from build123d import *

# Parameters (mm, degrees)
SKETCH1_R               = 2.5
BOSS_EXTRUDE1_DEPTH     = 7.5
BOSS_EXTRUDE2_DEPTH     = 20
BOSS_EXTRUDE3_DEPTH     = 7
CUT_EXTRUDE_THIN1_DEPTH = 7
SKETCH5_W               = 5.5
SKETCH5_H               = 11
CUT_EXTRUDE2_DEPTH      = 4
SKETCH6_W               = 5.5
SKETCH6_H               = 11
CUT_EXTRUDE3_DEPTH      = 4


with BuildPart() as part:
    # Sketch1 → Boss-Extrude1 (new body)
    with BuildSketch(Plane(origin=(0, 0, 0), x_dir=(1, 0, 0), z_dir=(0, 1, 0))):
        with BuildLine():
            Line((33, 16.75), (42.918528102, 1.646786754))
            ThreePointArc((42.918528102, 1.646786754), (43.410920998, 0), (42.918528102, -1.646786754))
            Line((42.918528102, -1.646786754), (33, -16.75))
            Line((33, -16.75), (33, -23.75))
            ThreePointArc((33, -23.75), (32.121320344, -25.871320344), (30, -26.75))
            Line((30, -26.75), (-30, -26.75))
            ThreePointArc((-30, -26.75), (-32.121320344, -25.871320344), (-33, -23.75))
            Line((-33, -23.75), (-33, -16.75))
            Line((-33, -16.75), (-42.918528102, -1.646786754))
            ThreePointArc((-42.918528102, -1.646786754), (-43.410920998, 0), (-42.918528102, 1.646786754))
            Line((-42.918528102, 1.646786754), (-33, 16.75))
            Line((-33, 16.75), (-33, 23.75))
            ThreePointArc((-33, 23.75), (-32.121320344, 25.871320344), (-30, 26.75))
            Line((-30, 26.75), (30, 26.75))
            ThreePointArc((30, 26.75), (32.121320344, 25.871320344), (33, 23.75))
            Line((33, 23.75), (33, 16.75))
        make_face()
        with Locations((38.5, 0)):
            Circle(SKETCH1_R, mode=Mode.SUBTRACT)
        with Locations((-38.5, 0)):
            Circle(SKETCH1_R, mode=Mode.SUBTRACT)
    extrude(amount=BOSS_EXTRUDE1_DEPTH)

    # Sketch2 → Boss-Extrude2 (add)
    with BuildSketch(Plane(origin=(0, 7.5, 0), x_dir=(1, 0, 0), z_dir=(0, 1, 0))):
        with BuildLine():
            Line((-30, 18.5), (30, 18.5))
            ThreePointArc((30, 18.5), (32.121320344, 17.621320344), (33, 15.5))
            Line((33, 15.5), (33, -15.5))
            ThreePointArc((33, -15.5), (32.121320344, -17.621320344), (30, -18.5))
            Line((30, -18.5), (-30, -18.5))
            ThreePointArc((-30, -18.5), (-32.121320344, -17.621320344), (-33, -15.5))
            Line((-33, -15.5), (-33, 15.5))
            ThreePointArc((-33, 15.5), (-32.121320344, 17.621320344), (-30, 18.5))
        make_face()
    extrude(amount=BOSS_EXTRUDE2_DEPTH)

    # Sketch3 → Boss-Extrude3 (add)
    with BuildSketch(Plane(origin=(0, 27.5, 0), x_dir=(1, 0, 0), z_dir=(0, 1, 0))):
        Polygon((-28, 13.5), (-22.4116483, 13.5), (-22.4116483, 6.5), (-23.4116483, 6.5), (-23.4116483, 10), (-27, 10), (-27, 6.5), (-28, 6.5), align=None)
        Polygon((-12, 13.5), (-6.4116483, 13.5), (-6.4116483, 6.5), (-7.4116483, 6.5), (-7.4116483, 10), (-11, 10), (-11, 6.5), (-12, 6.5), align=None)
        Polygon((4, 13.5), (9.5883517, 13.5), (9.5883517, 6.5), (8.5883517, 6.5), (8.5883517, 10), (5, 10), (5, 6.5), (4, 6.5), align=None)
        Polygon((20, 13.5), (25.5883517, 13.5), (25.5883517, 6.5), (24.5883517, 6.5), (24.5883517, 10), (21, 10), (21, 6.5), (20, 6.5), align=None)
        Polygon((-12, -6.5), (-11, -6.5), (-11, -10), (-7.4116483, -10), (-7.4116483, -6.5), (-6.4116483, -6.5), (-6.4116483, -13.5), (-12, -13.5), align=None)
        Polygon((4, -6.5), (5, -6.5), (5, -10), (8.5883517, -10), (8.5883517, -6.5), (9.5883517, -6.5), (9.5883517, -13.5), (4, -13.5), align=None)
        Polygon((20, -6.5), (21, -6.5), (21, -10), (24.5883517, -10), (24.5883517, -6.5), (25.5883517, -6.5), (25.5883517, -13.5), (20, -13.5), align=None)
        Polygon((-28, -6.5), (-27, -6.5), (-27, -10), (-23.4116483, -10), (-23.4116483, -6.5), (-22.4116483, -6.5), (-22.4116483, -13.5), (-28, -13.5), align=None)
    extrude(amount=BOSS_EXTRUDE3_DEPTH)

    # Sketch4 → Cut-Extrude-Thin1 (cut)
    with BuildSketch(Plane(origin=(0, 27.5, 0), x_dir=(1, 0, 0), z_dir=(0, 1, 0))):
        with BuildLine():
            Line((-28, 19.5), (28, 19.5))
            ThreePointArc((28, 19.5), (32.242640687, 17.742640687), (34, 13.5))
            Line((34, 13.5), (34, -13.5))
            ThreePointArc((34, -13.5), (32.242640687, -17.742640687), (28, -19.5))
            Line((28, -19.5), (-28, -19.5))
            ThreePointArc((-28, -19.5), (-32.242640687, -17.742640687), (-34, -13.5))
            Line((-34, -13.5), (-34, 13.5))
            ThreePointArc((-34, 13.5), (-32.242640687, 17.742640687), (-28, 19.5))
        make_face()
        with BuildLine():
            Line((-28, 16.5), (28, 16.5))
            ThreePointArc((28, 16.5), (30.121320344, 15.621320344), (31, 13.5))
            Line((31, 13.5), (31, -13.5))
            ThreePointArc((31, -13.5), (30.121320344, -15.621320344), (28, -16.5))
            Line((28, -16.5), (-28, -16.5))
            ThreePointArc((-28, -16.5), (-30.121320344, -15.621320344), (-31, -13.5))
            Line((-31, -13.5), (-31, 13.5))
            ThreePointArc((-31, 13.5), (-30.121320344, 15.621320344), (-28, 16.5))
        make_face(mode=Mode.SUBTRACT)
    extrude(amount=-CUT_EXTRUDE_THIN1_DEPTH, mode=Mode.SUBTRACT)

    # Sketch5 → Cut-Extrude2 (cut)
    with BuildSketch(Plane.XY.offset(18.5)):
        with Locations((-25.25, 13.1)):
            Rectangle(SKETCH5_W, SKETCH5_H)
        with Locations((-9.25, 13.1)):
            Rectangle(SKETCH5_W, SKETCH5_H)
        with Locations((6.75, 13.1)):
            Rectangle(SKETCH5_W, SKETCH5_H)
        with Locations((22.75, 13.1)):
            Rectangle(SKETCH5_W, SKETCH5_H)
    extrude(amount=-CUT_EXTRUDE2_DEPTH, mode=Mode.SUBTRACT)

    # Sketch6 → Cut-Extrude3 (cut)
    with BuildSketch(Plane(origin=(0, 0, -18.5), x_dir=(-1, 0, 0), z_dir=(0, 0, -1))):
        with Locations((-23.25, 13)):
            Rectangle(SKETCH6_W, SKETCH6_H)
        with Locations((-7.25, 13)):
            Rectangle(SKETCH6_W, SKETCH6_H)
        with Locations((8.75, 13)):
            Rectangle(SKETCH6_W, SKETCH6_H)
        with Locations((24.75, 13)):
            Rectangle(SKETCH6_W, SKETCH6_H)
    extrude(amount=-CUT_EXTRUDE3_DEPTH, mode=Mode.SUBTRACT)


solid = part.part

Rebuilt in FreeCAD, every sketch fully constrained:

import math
import FreeCAD as App
import Part
import Sketcher
Q = App.Units.Quantity


def add_polygon(sketch, points):
    """Adds a closed chain of lines whose ends are joined by coincident constraints."""
    first, n = sketch.GeometryCount, len(points)
    for a, b in zip(points, points[1:] + points[:1]):
        sketch.addGeometry(Part.LineSegment(App.Vector(*a, 0), App.Vector(*b, 0)), False)
    for i in range(n):
        sketch.addConstraint(Sketcher.Constraint("Coincident", first + i, 2, first + (i + 1) % n, 1))

doc = App.newDocument("Part")
body = doc.addObject("PartDesign::Body", "Body")

sketch1 = body.newObject("Sketcher::SketchObject", "Sketch")
sketch1.AttachmentSupport = (doc.getObject("XZ_Plane"), [""])
sketch1.MapMode = "FlatFace"
sketch1.addGeometry([
    Part.LineSegment(App.Vector(42.9, -1.6, 0), App.Vector(33, -16.8, 0)),
    Part.LineSegment(App.Vector(33, -16.8, 0), App.Vector(33, -23.8, 0)),
    Part.ArcOfCircle(Part.Circle(App.Vector(30, -23.8, 0), App.Vector(0, 0, 1), 3), math.radians(-90), math.radians(0)),
    Part.LineSegment(App.Vector(30, -26.8, 0), App.Vector(-30, -26.8, 0)),
    Part.ArcOfCircle(Part.Circle(App.Vector(-30, -23.8, 0), App.Vector(0, 0, 1), 3), math.radians(180), math.radians(270)),
    Part.LineSegment(App.Vector(-33, -23.8, 0), App.Vector(-33, -16.8, 0)),
    Part.LineSegment(App.Vector(-33, -16.8, 0), App.Vector(-42.9, -1.6, 0)),
    Part.ArcOfCircle(Part.Circle(App.Vector(-40.4, 0, 0), App.Vector(0, 0, 1), 3), math.radians(147), math.radians(213)),
    Part.LineSegment(App.Vector(-42.9, 1.6, 0), App.Vector(-33, 16.8, 0)),
    Part.LineSegment(App.Vector(-33, 16.8, 0), App.Vector(-33, 23.8, 0)),
    Part.ArcOfCircle(Part.Circle(App.Vector(-30, 23.8, 0), App.Vector(0, 0, 1), 3), math.radians(90), math.radians(180)),
    Part.LineSegment(App.Vector(-30, 26.8, 0), App.Vector(30, 26.8, 0)),
    Part.ArcOfCircle(Part.Circle(App.Vector(30, 23.8, 0), App.Vector(0, 0, 1), 3), math.radians(0), math.radians(90)),
    Part.LineSegment(App.Vector(33, 23.8, 0), App.Vector(33, 16.8, 0)),
    Part.LineSegment(App.Vector(33, 16.8, 0), App.Vector(42.9, 1.6, 0)),
    Part.ArcOfCircle(Part.Circle(App.Vector(40.4, 0, 0), App.Vector(0, 0, 1), 3), math.radians(-33), math.radians(33)),
    Part.Circle(App.Vector(38.5, 0, 0), App.Vector(0, 0, 1), 2.5),
    Part.Circle(App.Vector(-38.5, 0, 0), App.Vector(0, 0, 1), 2.5),
], False)
sketch1.addConstraint([
    Sketcher.Constraint("Coincident", 0, 2, 1, 1),
    Sketcher.Constraint("Tangent", 1, 2, 2, 2),
    Sketcher.Constraint("Tangent", 2, 1, 3, 1),
    Sketcher.Constraint("Tangent", 3, 2, 4, 2),
    Sketcher.Constraint("Tangent", 4, 1, 5, 1),
    Sketcher.Constraint("Coincident", 5, 2, 6, 1),
    Sketcher.Constraint("Tangent", 6, 2, 7, 2),
    Sketcher.Constraint("Tangent", 7, 1, 8, 1),
    Sketcher.Constraint("Coincident", 8, 2, 9, 1),
    Sketcher.Constraint("Tangent", 9, 2, 10, 2),
    Sketcher.Constraint("Tangent", 10, 1, 11, 1),
    Sketcher.Constraint("Tangent", 11, 2, 12, 2),
    Sketcher.Constraint("Tangent", 12, 1, 13, 1),
    Sketcher.Constraint("Coincident", 13, 2, 14, 1),
    Sketcher.Constraint("Tangent", 14, 2, 15, 2),
    Sketcher.Constraint("Tangent", 15, 1, 0, 1),
    Sketcher.Constraint("Vertical", 1),
    Sketcher.Constraint("Horizontal", 3),
    Sketcher.Constraint("Vertical", 5),
    Sketcher.Constraint("Vertical", 9),
    Sketcher.Constraint("Horizontal", 11),
    Sketcher.Constraint("Vertical", 13),
    Sketcher.Constraint("Equal", 2, 4),
    Sketcher.Constraint("Equal", 4, 7),
    Sketcher.Constraint("Equal", 7, 10),
    Sketcher.Constraint("Equal", 10, 12),
    Sketcher.Constraint("Equal", 12, 15),
    Sketcher.Constraint("Equal", 16, 17),
    Sketcher.Constraint("Symmetric", 2, 3, 10, 3, -1, 1),
    Sketcher.Constraint("Symmetric", 7, 3, 15, 3, -1, 1),
    Sketcher.Constraint("Symmetric", 16, 3, 17, 3, -1, 1),
    Sketcher.Constraint("Symmetric", 5, 2, 13, 2, -1, 1),
    Sketcher.Constraint("Symmetric", 0, 2, 5, 2, -2),
    Sketcher.Constraint("Symmetric", 7, 1, 14, 2, -2),
    Sketcher.Constraint("PointOnObject", 16, 3, -1),
    Sketcher.Constraint("Diameter", 16, Q("5 mm")),
    Sketcher.Constraint("Radius", 2, Q("3 mm")),
    Sketcher.Constraint("DistanceX", 3, 2, 3, 1, Q("60 mm")),
    Sketcher.Constraint("DistanceY", 1, 2, 1, 1, Q("7 mm")),
    Sketcher.Constraint("DistanceX", -1, 1, 16, 3, Q("38.5 mm")),
    Sketcher.Constraint("DistanceY", 4, 3, 10, 3, Q("47.5 mm")),
    Sketcher.Constraint("DistanceX", 7, 3, -1, 1, Q("40.410921 mm")),
])
pad1 = body.newObject("PartDesign::Pad", "Pad")
pad1.Profile = sketch1
pad1.Length = 7.5
pad1.Reversed = True

sketch2 = body.newObject("Sketcher::SketchObject", "Sketch001")
sketch2.AttachmentSupport = (doc.getObject("XZ_Plane"), [""])
sketch2.MapMode = "FlatFace"
sketch2.AttachmentOffset = App.Placement(App.Vector(0, 0, -7.5), App.Rotation())
sketch2.addGeometry([
    Part.LineSegment(App.Vector(30, -18.5, 0), App.Vector(-30, -18.5, 0)),
    Part.ArcOfCircle(Part.Circle(App.Vector(-30, -15.5, 0), App.Vector(0, 0, 1), 3), math.radians(180), math.radians(270)),
    Part.LineSegment(App.Vector(-33, -15.5, 0), App.Vector(-33, 15.5, 0)),
    Part.ArcOfCircle(Part.Circle(App.Vector(-30, 15.5, 0), App.Vector(0, 0, 1), 3), math.radians(90), math.radians(180)),
    Part.LineSegment(App.Vector(-30, 18.5, 0), App.Vector(30, 18.5, 0)),
    Part.ArcOfCircle(Part.Circle(App.Vector(30, 15.5, 0), App.Vector(0, 0, 1), 3), math.radians(0), math.radians(90)),
    Part.LineSegment(App.Vector(33, 15.5, 0), App.Vector(33, -15.5, 0)),
    Part.ArcOfCircle(Part.Circle(App.Vector(30, -15.5, 0), App.Vector(0, 0, 1), 3), math.radians(-90), math.radians(0)),
], False)
sketch2.addConstraint([
    Sketcher.Constraint("Tangent", 0, 2, 1, 2),
    Sketcher.Constraint("Tangent", 1, 1, 2, 1),
    Sketcher.Constraint("Tangent", 2, 2, 3, 2),
    Sketcher.Constraint("Tangent", 3, 1, 4, 1),
    Sketcher.Constraint("Tangent", 4, 2, 5, 2),
    Sketcher.Constraint("Tangent", 5, 1, 6, 1),
    Sketcher.Constraint("Tangent", 6, 2, 7, 2),
    Sketcher.Constraint("Tangent", 7, 1, 0, 1),
    Sketcher.Constraint("Horizontal", 0),
    Sketcher.Constraint("Vertical", 2),
    Sketcher.Constraint("Horizontal", 4),
    Sketcher.Constraint("Vertical", 6),
    Sketcher.Constraint("Equal", 1, 3),
    Sketcher.Constraint("Equal", 3, 5),
    Sketcher.Constraint("Equal", 5, 7),
    Sketcher.Constraint("Symmetric", 1, 3, 5, 3, -1, 1),
    Sketcher.Constraint("Radius", 1, Q("3 mm")),
    Sketcher.Constraint("DistanceX", 0, 2, 0, 1, Q("60 mm")),
    Sketcher.Constraint("DistanceY", 2, 1, 2, 2, Q("31 mm")),
])
pad2 = body.newObject("PartDesign::Pad", "Pad001")
pad2.Profile = sketch2
pad2.Length = 20
pad2.Reversed = True

sketch3 = body.newObject("Sketcher::SketchObject", "Sketch002")
sketch3.AttachmentSupport = (doc.getObject("XZ_Plane"), [""])
sketch3.MapMode = "FlatFace"
sketch3.AttachmentOffset = App.Placement(App.Vector(0, 0, -27.5), App.Rotation())
add_polygon(sketch3, [(-22.4, -13.5), (-28, -13.5), (-28, -6.5), (-27, -6.5), (-27, -10), (-23.4, -10), (-23.4, -6.5), (-22.4, -6.5)])
add_polygon(sketch3, [(-6.4, -13.5), (-12, -13.5), (-12, -6.5), (-11, -6.5), (-11, -10), (-7.4, -10), (-7.4, -6.5), (-6.4, -6.5)])
add_polygon(sketch3, [(9.6, -13.5), (4, -13.5), (4, -6.5), (5, -6.5), (5, -10), (8.6, -10), (8.6, -6.5), (9.6, -6.5)])
add_polygon(sketch3, [(25.6, -13.5), (20, -13.5), (20, -6.5), (21, -6.5), (21, -10), (24.6, -10), (24.6, -6.5), (25.6, -6.5)])
add_polygon(sketch3, [(-11, 6.5), (-12, 6.5), (-12, 13.5), (-6.4, 13.5), (-6.4, 6.5), (-7.4, 6.5), (-7.4, 10), (-11, 10)])
add_polygon(sketch3, [(5, 6.5), (4, 6.5), (4, 13.5), (9.6, 13.5), (9.6, 6.5), (8.6, 6.5), (8.6, 10), (5, 10)])
add_polygon(sketch3, [(21, 6.5), (20, 6.5), (20, 13.5), (25.6, 13.5), (25.6, 6.5), (24.6, 6.5), (24.6, 10), (21, 10)])
add_polygon(sketch3, [(-27, 6.5), (-28, 6.5), (-28, 13.5), (-22.4, 13.5), (-22.4, 6.5), (-23.4, 6.5), (-23.4, 10), (-27, 10)])
sketch3.addConstraint([
    Sketcher.Constraint("Horizontal", 0),
    Sketcher.Constraint("Vertical", 1),
    Sketcher.Constraint("Horizontal", 2),
    Sketcher.Constraint("Vertical", 3),
    Sketcher.Constraint("Horizontal", 4),
    Sketcher.Constraint("Vertical", 5),
    Sketcher.Constraint("Horizontal", 6),
    Sketcher.Constraint("Vertical", 7),
    Sketcher.Constraint("Horizontal", 8),
    Sketcher.Constraint("Vertical", 9),
    Sketcher.Constraint("Horizontal", 10),
    Sketcher.Constraint("Vertical", 11),
    Sketcher.Constraint("Horizontal", 12),
    Sketcher.Constraint("Vertical", 13),
    Sketcher.Constraint("Horizontal", 14),
    Sketcher.Constraint("Vertical", 15),
    Sketcher.Constraint("Horizontal", 16),
    Sketcher.Constraint("Vertical", 17),
    Sketcher.Constraint("Horizontal", 18),
    Sketcher.Constraint("Vertical", 19),
    Sketcher.Constraint("Horizontal", 20),
    Sketcher.Constraint("Vertical", 21),
    Sketcher.Constraint("Horizontal", 22),
    Sketcher.Constraint("Vertical", 23),
    Sketcher.Constraint("Horizontal", 24),
    Sketcher.Constraint("Vertical", 25),
    Sketcher.Constraint("Horizontal", 26),
    Sketcher.Constraint("Vertical", 27),
    Sketcher.Constraint("Horizontal", 28),
    Sketcher.Constraint("Vertical", 29),
    Sketcher.Constraint("Horizontal", 30),
    Sketcher.Constraint("Vertical", 31),
    Sketcher.Constraint("Horizontal", 32),
    Sketcher.Constraint("Vertical", 33),
    Sketcher.Constraint("Horizontal", 34),
    Sketcher.Constraint("Vertical", 35),
    Sketcher.Constraint("Horizontal", 36),
    Sketcher.Constraint("Vertical", 37),
    Sketcher.Constraint("Horizontal", 38),
    Sketcher.Constraint("Vertical", 39),
    Sketcher.Constraint("Horizontal", 40),
    Sketcher.Constraint("Vertical", 41),
    Sketcher.Constraint("Horizontal", 42),
    Sketcher.Constraint("Vertical", 43),
    Sketcher.Constraint("Horizontal", 44),
    Sketcher.Constraint("Vertical", 45),
    Sketcher.Constraint("Horizontal", 46),
    Sketcher.Constraint("Vertical", 47),
    Sketcher.Constraint("Horizontal", 48),
    Sketcher.Constraint("Vertical", 49),
    Sketcher.Constraint("Horizontal", 50),
    Sketcher.Constraint("Vertical", 51),
    Sketcher.Constraint("Horizontal", 52),
    Sketcher.Constraint("Vertical", 53),
    Sketcher.Constraint("Horizontal", 54),
    Sketcher.Constraint("Vertical", 55),
    Sketcher.Constraint("Horizontal", 56),
    Sketcher.Constraint("Vertical", 57),
    Sketcher.Constraint("Horizontal", 58),
    Sketcher.Constraint("Vertical", 59),
    Sketcher.Constraint("Horizontal", 60),
    Sketcher.Constraint("Vertical", 61),
    Sketcher.Constraint("Horizontal", 62),
    Sketcher.Constraint("Vertical", 63),
    Sketcher.Constraint("Symmetric", 9, 2, 32, 2, -1),
    Sketcher.Constraint("Symmetric", 15, 2, 34, 2, -1),
    Sketcher.Constraint("Symmetric", 13, 2, 36, 2, -1),
    Sketcher.Constraint("Symmetric", 11, 2, 38, 2, -1),
    Sketcher.Constraint("Symmetric", 17, 2, 40, 2, -1),
    Sketcher.Constraint("Symmetric", 23, 2, 42, 2, -1),
    Sketcher.Constraint("Symmetric", 21, 2, 44, 2, -1),
    Sketcher.Constraint("Symmetric", 19, 2, 46, 2, -1),
    Sketcher.Constraint("Symmetric", 25, 2, 48, 2, -1),
    Sketcher.Constraint("Symmetric", 31, 2, 50, 2, -1),
    Sketcher.Constraint("Symmetric", 29, 2, 52, 2, -1),
    Sketcher.Constraint("Symmetric", 27, 2, 54, 2, -1),
    Sketcher.Constraint("Symmetric", 1, 2, 56, 2, -1),
    Sketcher.Constraint("Symmetric", 7, 2, 58, 2, -1),
    Sketcher.Constraint("Symmetric", 5, 2, 60, 2, -1),
    Sketcher.Constraint("Symmetric", 3, 2, 62, 2, -1),
    Sketcher.Constraint("Horizontal", 2, 2, 5, 2),
    Sketcher.Constraint("Horizontal", 7, 2, 8, 2),
    Sketcher.Constraint("Horizontal", 6, 2, 9, 2),
    Sketcher.Constraint("Horizontal", 4, 2, 11, 2),
    Sketcher.Constraint("Horizontal", 10, 2, 13, 2),
    Sketcher.Constraint("Horizontal", 15, 2, 16, 2),
    Sketcher.Constraint("Horizontal", 14, 2, 17, 2),
    Sketcher.Constraint("Horizontal", 12, 2, 19, 2),
    Sketcher.Constraint("Horizontal", 18, 2, 21, 2),
    Sketcher.Constraint("Horizontal", 23, 2, 24, 2),
    Sketcher.Constraint("Horizontal", 22, 2, 25, 2),
    Sketcher.Constraint("Horizontal", 20, 2, 27, 2),
    Sketcher.Constraint("Horizontal", 26, 2, 29, 2),
    Sketcher.Constraint("Equal", 2, 6),
    Sketcher.Constraint("Equal", 0, 8),
    Sketcher.Constraint("Equal", 6, 10),
    Sketcher.Constraint("Equal", 4, 12),
    Sketcher.Constraint("Equal", 8, 16),
    Sketcher.Constraint("Equal", 14, 18),
    Sketcher.Constraint("Equal", 12, 20),
    Sketcher.Constraint("Equal", 16, 24),
    Sketcher.Constraint("Equal", 22, 26),
    Sketcher.Constraint("Equal", 20, 28),
    Sketcher.Constraint("DistanceX", 2, 1, 2, 2, Q("1 mm")),
    Sketcher.Constraint("DistanceY", 1, 1, 1, 2, Q("7 mm")),
    Sketcher.Constraint("DistanceY", 3, 2, 3, 1, Q("3.5 mm")),
    Sketcher.Constraint("DistanceX", 0, 2, -1, 1, Q("28 mm")),
    Sketcher.Constraint("DistanceY", 3, 2, -1, 1, Q("10 mm")),
    Sketcher.Constraint("DistanceX", 8, 2, -1, 1, Q("12 mm")),
    Sketcher.Constraint("DistanceX", -1, 1, 16, 2, Q("4 mm")),
    Sketcher.Constraint("DistanceX", -1, 1, 24, 2, Q("20 mm")),
    Sketcher.Constraint("DistanceX", 0, 2, 0, 1, Q("5.588352 mm")),
])
pad3 = body.newObject("PartDesign::Pad", "Pad002")
pad3.Profile = sketch3
pad3.Length = 7
pad3.Reversed = True

sketch4 = body.newObject("Sketcher::SketchObject", "Sketch003")
sketch4.AttachmentSupport = (doc.getObject("XZ_Plane"), [""])
sketch4.MapMode = "FlatFace"
sketch4.AttachmentOffset = App.Placement(App.Vector(0, 0, -27.5), App.Rotation())
sketch4.addGeometry([
    Part.LineSegment(App.Vector(28, -19.5, 0), App.Vector(-28, -19.5, 0)),
    Part.ArcOfCircle(Part.Circle(App.Vector(-28, -13.5, 0), App.Vector(0, 0, 1), 6), math.radians(180), math.radians(270)),
    Part.LineSegment(App.Vector(-34, -13.5, 0), App.Vector(-34, 13.5, 0)),
    Part.ArcOfCircle(Part.Circle(App.Vector(-28, 13.5, 0), App.Vector(0, 0, 1), 6), math.radians(90), math.radians(180)),
    Part.LineSegment(App.Vector(-28, 19.5, 0), App.Vector(28, 19.5, 0)),
    Part.ArcOfCircle(Part.Circle(App.Vector(28, 13.5, 0), App.Vector(0, 0, 1), 6), math.radians(0), math.radians(90)),
    Part.LineSegment(App.Vector(34, 13.5, 0), App.Vector(34, -13.5, 0)),
    Part.ArcOfCircle(Part.Circle(App.Vector(28, -13.5, 0), App.Vector(0, 0, 1), 6), math.radians(-90), math.radians(0)),
    Part.LineSegment(App.Vector(-28, -16.5, 0), App.Vector(28, -16.5, 0)),
    Part.ArcOfCircle(Part.Circle(App.Vector(28, -13.5, 0), App.Vector(0, 0, 1), 3), math.radians(-90), math.radians(0)),
    Part.LineSegment(App.Vector(31, -13.5, 0), App.Vector(31, 13.5, 0)),
    Part.ArcOfCircle(Part.Circle(App.Vector(28, 13.5, 0), App.Vector(0, 0, 1), 3), math.radians(0), math.radians(90)),
    Part.LineSegment(App.Vector(28, 16.5, 0), App.Vector(-28, 16.5, 0)),
    Part.ArcOfCircle(Part.Circle(App.Vector(-28, 13.5, 0), App.Vector(0, 0, 1), 3), math.radians(90), math.radians(180)),
    Part.LineSegment(App.Vector(-31, 13.5, 0), App.Vector(-31, -13.5, 0)),
    Part.ArcOfCircle(Part.Circle(App.Vector(-28, -13.5, 0), App.Vector(0, 0, 1), 3), math.radians(180), math.radians(270)),
], False)
sketch4.addConstraint([
    Sketcher.Constraint("Tangent", 0, 2, 1, 2),
    Sketcher.Constraint("Tangent", 1, 1, 2, 1),
    Sketcher.Constraint("Tangent", 2, 2, 3, 2),
    Sketcher.Constraint("Tangent", 3, 1, 4, 1),
    Sketcher.Constraint("Tangent", 4, 2, 5, 2),
    Sketcher.Constraint("Tangent", 5, 1, 6, 1),
    Sketcher.Constraint("Tangent", 6, 2, 7, 2),
    Sketcher.Constraint("Tangent", 7, 1, 0, 1),
    Sketcher.Constraint("Tangent", 8, 2, 9, 1),
    Sketcher.Constraint("Tangent", 9, 2, 10, 1),
    Sketcher.Constraint("Tangent", 10, 2, 11, 1),
    Sketcher.Constraint("Tangent", 11, 2, 12, 1),
    Sketcher.Constraint("Tangent", 12, 2, 13, 1),
    Sketcher.Constraint("Tangent", 13, 2, 14, 1),
    Sketcher.Constraint("Tangent", 14, 2, 15, 1),
    Sketcher.Constraint("Tangent", 15, 2, 8, 1),
    Sketcher.Constraint("Horizontal", 0),
    Sketcher.Constraint("Vertical", 2),
    Sketcher.Constraint("Horizontal", 4),
    Sketcher.Constraint("Vertical", 6),
    Sketcher.Constraint("Horizontal", 8),
    Sketcher.Constraint("Vertical", 10),
    Sketcher.Constraint("Horizontal", 12),
    Sketcher.Constraint("Vertical", 14),
    Sketcher.Constraint("Coincident", 9, 3, 7, 3),
    Sketcher.Constraint("Coincident", 11, 3, 5, 3),
    Sketcher.Constraint("Coincident", 13, 3, 3, 3),
    Sketcher.Constraint("Equal", 1, 3),
    Sketcher.Constraint("Equal", 3, 5),
    Sketcher.Constraint("Equal", 5, 7),
    Sketcher.Constraint("Equal", 13, 15),
    Sketcher.Constraint("Symmetric", 1, 3, 5, 3, -1, 1),
    Sketcher.Constraint("Radius", 1, Q("6 mm")),
    Sketcher.Constraint("Radius", 9, Q("3 mm")),
    Sketcher.Constraint("DistanceX", 0, 2, 0, 1, Q("56 mm")),
    Sketcher.Constraint("DistanceY", 2, 1, 2, 2, Q("27 mm")),
])
pocket1 = body.newObject("PartDesign::Pocket", "Pocket")
pocket1.Profile = sketch4
pocket1.Length = 7
pocket1.Reversed = True

sketch5 = body.newObject("Sketcher::SketchObject", "Sketch004")
sketch5.AttachmentSupport = (doc.getObject("XY_Plane"), [""])
sketch5.MapMode = "FlatFace"
sketch5.AttachmentOffset = App.Placement(App.Vector(0, 0, 18.5), App.Rotation())
add_polygon(sketch5, [(-28, 19), (-28, 8), (-22, 8), (-22, 19)])
add_polygon(sketch5, [(-12, 19), (-12, 8), (-6, 8), (-6, 19)])
add_polygon(sketch5, [(4, 19), (4, 8), (10, 8), (10, 19)])
add_polygon(sketch5, [(20, 19), (20, 8), (26, 8), (26, 19)])
sketch5.addConstraint([
    Sketcher.Constraint("Vertical", 0),
    Sketcher.Constraint("Horizontal", 1),
    Sketcher.Constraint("Vertical", 2),
    Sketcher.Constraint("Horizontal", 3),
    Sketcher.Constraint("Vertical", 4),
    Sketcher.Constraint("Horizontal", 5),
    Sketcher.Constraint("Vertical", 6),
    Sketcher.Constraint("Horizontal", 7),
    Sketcher.Constraint("Vertical", 8),
    Sketcher.Constraint("Horizontal", 9),
    Sketcher.Constraint("Vertical", 10),
    Sketcher.Constraint("Horizontal", 11),
    Sketcher.Constraint("Vertical", 12),
    Sketcher.Constraint("Horizontal", 13),
    Sketcher.Constraint("Vertical", 14),
    Sketcher.Constraint("Horizontal", 15),
    Sketcher.Constraint("Horizontal", 1, 2, 4, 2),
    Sketcher.Constraint("Horizontal", 3, 2, 6, 2),
    Sketcher.Constraint("Horizontal", 5, 2, 8, 2),
    Sketcher.Constraint("Horizontal", 7, 2, 10, 2),
    Sketcher.Constraint("Horizontal", 9, 2, 12, 2),
    Sketcher.Constraint("Horizontal", 11, 2, 14, 2),
    Sketcher.Constraint("Equal", 3, 5),
    Sketcher.Constraint("Equal", 7, 9),
    Sketcher.Constraint("Equal", 11, 13),
    Sketcher.Constraint("DistanceY", 0, 2, 0, 1, Q("11 mm")),
    Sketcher.Constraint("DistanceX", 1, 1, 1, 2, Q("5.5 mm")),
    Sketcher.Constraint("DistanceX", 0, 2, -1, 1, Q("28 mm")),
    Sketcher.Constraint("DistanceX", 4, 2, -1, 1, Q("12 mm")),
    Sketcher.Constraint("DistanceX", -1, 1, 8, 2, Q("4 mm")),
    Sketcher.Constraint("DistanceX", -1, 1, 12, 2, Q("20 mm")),
    Sketcher.Constraint("DistanceY", -1, 1, 0, 2, Q("7.6 mm")),
])
pocket2 = body.newObject("PartDesign::Pocket", "Pocket001")
pocket2.Profile = sketch5
pocket2.Length = 4

sketch6 = body.newObject("Sketcher::SketchObject", "Sketch005")
sketch6.AttachmentSupport = (doc.getObject("XY_Plane"), [""])
sketch6.MapMode = "FlatFace"
sketch6.AttachmentOffset = App.Placement(App.Vector(0, 0, -18.5), App.Rotation())
add_polygon(sketch6, [(26, 18), (26, 8), (20, 8), (20, 18)])
add_polygon(sketch6, [(10, 18), (10, 8), (4, 8), (4, 18)])
add_polygon(sketch6, [(-6, 18), (-6, 8), (-12, 8), (-12, 18)])
add_polygon(sketch6, [(-22, 18), (-22, 8), (-28, 8), (-28, 18)])
sketch6.addConstraint([
    Sketcher.Constraint("Vertical", 0),
    Sketcher.Constraint("Horizontal", 1),
    Sketcher.Constraint("Vertical", 2),
    Sketcher.Constraint("Horizontal", 3),
    Sketcher.Constraint("Vertical", 4),
    Sketcher.Constraint("Horizontal", 5),
    Sketcher.Constraint("Vertical", 6),
    Sketcher.Constraint("Horizontal", 7),
    Sketcher.Constraint("Vertical", 8),
    Sketcher.Constraint("Horizontal", 9),
    Sketcher.Constraint("Vertical", 10),
    Sketcher.Constraint("Horizontal", 11),
    Sketcher.Constraint("Vertical", 12),
    Sketcher.Constraint("Horizontal", 13),
    Sketcher.Constraint("Vertical", 14),
    Sketcher.Constraint("Horizontal", 15),
    Sketcher.Constraint("Horizontal", 1, 2, 4, 2),
    Sketcher.Constraint("Horizontal", 3, 2, 6, 2),
    Sketcher.Constraint("Horizontal", 5, 2, 8, 2),
    Sketcher.Constraint("Horizontal", 7, 2, 10, 2),
    Sketcher.Constraint("Horizontal", 9, 2, 12, 2),
    Sketcher.Constraint("Horizontal", 11, 2, 14, 2),
    Sketcher.Constraint("Equal", 3, 5),
    Sketcher.Constraint("Equal", 7, 9),
    Sketcher.Constraint("Equal", 11, 13),
    Sketcher.Constraint("DistanceY", 0, 2, 0, 1, Q("11 mm")),
    Sketcher.Constraint("DistanceX", 1, 2, 1, 1, Q("5.5 mm")),
    Sketcher.Constraint("DistanceX", -1, 1, 0, 2, Q("26 mm")),
    Sketcher.Constraint("DistanceX", -1, 1, 4, 2, Q("10 mm")),
    Sketcher.Constraint("DistanceX", 8, 2, -1, 1, Q("6 mm")),
    Sketcher.Constraint("DistanceX", 12, 2, -1, 1, Q("22 mm")),
    Sketcher.Constraint("DistanceY", -1, 1, 0, 2, Q("7.5 mm")),
])
pocket3 = body.newObject("PartDesign::Pocket", "Pocket002")
pocket3.Profile = sketch6
pocket3.Length = 4
pocket3.Reversed = True

doc.recompute()
